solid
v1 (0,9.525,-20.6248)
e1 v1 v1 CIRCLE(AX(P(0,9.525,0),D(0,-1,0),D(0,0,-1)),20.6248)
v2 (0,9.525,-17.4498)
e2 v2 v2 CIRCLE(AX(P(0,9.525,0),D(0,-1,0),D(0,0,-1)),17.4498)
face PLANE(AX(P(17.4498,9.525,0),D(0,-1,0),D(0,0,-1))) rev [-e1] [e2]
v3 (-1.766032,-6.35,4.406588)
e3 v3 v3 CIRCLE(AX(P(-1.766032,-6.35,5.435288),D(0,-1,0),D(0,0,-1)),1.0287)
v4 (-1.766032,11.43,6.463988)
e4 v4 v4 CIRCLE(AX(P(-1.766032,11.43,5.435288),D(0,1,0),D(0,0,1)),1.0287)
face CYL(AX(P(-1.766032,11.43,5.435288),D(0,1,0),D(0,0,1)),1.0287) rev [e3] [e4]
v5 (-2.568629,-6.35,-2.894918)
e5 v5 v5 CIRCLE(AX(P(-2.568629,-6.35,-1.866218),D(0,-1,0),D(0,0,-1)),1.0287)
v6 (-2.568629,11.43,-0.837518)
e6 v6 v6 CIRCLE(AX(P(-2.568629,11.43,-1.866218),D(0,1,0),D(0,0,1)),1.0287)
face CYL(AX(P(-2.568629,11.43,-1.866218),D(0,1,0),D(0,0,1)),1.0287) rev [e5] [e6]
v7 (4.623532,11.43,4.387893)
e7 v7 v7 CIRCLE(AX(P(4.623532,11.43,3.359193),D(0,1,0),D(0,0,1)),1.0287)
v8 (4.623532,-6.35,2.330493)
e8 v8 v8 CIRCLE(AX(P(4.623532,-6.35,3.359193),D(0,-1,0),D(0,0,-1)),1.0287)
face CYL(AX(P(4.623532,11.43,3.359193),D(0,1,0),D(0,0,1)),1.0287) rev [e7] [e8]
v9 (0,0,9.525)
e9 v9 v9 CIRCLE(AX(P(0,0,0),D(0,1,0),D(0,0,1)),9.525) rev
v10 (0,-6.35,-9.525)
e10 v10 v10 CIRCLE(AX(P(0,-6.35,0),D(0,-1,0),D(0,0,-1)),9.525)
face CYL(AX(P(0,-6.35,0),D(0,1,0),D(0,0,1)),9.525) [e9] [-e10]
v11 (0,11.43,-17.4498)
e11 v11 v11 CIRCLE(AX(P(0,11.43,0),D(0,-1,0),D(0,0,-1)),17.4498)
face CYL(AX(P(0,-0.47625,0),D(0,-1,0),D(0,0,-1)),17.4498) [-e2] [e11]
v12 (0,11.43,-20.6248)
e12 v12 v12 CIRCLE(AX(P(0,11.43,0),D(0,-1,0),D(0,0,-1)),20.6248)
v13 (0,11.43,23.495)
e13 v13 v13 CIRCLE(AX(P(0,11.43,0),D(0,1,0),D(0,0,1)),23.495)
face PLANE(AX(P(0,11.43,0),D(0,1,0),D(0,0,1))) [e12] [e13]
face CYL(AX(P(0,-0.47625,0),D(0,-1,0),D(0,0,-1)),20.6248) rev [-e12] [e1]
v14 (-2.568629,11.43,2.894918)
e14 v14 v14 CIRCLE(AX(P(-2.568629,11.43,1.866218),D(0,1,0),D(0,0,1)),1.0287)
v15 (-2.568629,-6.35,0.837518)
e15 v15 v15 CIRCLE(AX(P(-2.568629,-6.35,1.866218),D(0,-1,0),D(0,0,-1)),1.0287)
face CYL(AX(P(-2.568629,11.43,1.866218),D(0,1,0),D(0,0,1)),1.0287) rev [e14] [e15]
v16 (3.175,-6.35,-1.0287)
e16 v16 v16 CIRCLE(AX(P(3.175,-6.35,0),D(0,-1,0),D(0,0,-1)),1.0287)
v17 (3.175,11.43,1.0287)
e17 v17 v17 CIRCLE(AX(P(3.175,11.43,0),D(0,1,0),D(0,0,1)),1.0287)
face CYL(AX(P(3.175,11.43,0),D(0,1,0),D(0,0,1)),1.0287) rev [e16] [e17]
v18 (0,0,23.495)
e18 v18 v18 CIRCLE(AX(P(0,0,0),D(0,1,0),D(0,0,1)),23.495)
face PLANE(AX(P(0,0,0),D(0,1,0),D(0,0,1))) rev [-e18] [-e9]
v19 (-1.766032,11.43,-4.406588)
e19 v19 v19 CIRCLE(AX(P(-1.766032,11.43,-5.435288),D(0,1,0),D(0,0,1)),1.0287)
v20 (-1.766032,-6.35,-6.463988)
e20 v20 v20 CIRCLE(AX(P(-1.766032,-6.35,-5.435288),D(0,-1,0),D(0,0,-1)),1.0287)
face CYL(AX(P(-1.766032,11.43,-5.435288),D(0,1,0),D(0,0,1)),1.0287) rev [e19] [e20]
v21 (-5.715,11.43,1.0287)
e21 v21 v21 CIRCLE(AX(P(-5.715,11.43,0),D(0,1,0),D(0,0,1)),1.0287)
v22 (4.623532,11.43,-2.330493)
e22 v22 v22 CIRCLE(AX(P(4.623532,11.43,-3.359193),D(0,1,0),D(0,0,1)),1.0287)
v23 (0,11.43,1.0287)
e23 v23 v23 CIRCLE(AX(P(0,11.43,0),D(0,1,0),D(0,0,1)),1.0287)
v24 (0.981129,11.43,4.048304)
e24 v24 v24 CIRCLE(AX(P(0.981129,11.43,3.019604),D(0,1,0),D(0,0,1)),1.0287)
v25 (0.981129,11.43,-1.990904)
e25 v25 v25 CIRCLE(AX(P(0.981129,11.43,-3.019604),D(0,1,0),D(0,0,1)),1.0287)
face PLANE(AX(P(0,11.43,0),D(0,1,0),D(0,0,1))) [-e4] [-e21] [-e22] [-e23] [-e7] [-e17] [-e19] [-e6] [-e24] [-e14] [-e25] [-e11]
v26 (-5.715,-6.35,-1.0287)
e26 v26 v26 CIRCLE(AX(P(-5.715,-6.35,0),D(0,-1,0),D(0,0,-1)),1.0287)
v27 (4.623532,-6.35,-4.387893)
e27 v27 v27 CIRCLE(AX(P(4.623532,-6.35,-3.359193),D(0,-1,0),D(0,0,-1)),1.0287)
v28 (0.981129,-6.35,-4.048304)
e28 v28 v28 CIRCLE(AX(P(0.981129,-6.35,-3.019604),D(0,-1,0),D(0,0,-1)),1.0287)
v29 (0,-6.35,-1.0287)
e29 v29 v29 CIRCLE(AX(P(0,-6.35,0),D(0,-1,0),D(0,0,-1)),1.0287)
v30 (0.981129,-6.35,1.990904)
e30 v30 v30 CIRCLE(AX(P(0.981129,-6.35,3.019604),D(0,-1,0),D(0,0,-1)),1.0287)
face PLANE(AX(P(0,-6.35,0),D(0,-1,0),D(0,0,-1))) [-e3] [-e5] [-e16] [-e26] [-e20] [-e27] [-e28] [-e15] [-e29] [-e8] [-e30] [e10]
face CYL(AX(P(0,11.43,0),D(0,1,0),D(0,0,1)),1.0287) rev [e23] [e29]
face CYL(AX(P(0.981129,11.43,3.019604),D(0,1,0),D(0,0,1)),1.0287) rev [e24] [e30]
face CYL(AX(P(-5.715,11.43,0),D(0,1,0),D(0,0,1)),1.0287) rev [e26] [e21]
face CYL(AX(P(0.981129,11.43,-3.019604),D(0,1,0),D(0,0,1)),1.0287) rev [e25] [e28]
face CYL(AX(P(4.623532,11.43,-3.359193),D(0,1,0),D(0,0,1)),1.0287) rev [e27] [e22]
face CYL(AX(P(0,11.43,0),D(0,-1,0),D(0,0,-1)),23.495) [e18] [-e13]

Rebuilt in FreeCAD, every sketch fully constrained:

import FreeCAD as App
import Part
import Sketcher

V = App.Vector
Q = App.Units.Quantity


def add_polygon(sketch, points):
    """Adds a closed chain of lines whose ends are joined by coincident constraints."""
    first, n = sketch.GeometryCount, len(points)
    for a, b in zip(points, points[1:] + points[:1]):
        sketch.addGeometry(Part.LineSegment(App.Vector(*a, 0), App.Vector(*b, 0)), False)
    for i in range(n):
        sketch.addConstraint(Sketcher.Constraint("Coincident", first + i, 2, first + (i + 1) % n, 1))

doc = App.newDocument("Part")
body = doc.addObject("PartDesign::Body", "Body")

sketch1 = body.newObject("Sketcher::SketchObject", "Sketch")
sketch1.AttachmentSupport = (doc.getObject("XZ_Plane"), [""])
sketch1.MapMode = "FlatFace"
sketch1.addGeometry(Part.Circle(V(0, 0, 0), V(0, 0, 1), 23), False)
sketch1.addConstraint([
    Sketcher.Constraint("Coincident", 0, 3, -1, 1),
    Sketcher.Constraint("Diameter", 0, Q("1.85 in")),
])
pad1 = body.newObject("PartDesign::Pad", "Pad")
pad1.Profile = sketch1
pad1.Length = Q("0.45 in")
pad1.Reversed = True

sketch2 = body.newObject("Sketcher::SketchObject", "Sketch001")
sketch2.AttachmentSupport = (doc.getObject("XY_Plane"), [""])
sketch2.MapMode = "FlatFace"
add_polygon(sketch2, [(17.4, 11.4), (17.4, 9.5), (20.6, 9.5), (20.6, 11.4)])
sketch2.addConstraint([
    Sketcher.Constraint("Vertical", 0),
    Sketcher.Constraint("Horizontal", 1),
    Sketcher.Constraint("Vertical", 2),
    Sketcher.Constraint("Horizontal", 3),
    Sketcher.Constraint("DistanceX", 1, 1, 1, 2, Q("0.125 in")),
    Sketcher.Constraint("DistanceY", 0, 2, 0, 1, Q("0.075 in")),
    Sketcher.Constraint("DistanceY", -1, 1, 2, 2, Q("0.45 in")),
    Sketcher.Constraint("DistanceX", -1, 1, 0, 2, Q("0.687 in")),
])
groove = body.newObject("PartDesign::Groove", "Groove")
groove.Profile = sketch2
groove.ReferenceAxis = (sketch2, ["V_Axis"])
groove.Angle = 360

sketch3 = body.newObject("Sketcher::SketchObject", "Sketch002")
sketch3.AttachmentSupport = (doc.getObject("XZ_Plane"), [""])
sketch3.MapMode = "FlatFace"
sketch3.addGeometry(Part.Circle(V(0, 0, 0), V(0, 0, 1), 10), False)
sketch3.addConstraint([
    Sketcher.Constraint("Coincident", 0, 3, -1, 1),
    Sketcher.Constraint("Diameter", 0, Q("0.75 in")),
])
pad2 = body.newObject("PartDesign::Pad", "Pad001")
pad2.Profile = sketch3
pad2.Length = Q("0.25 in")

sketch4 = body.newObject("Sketcher::SketchObject", "Sketch003")
sketch4.AttachmentSupport = (doc.getObject("XZ_Plane"), [""])
sketch4.MapMode = "FlatFace"
sketch4.AttachmentOffset = App.Placement(V(0, 0, -0.45 * 25.4), App.Rotation())
sketch4.addGeometry([
    Part.Circle(V(-5.7, 0, 0), V(0, 0, 1), 1),
    Part.Circle(V(-2.6, -1.9, 0), V(0, 0, 1), 1),
    Part.Circle(V(0, 0, 0), V(0, 0, 1), 1),
    Part.Circle(V(-1.8, -5.4, 0), V(0, 0, 1), 1),
    Part.Circle(V(4.6, -3.4, 0), V(0, 0, 1), 1),
    Part.Circle(V(4.6, 3.4, 0), V(0, 0, 1), 1),
    Part.Circle(V(-1.8, 5.4, 0), V(0, 0, 1), 1),
    Part.Circle(V(1, -3, 0), V(0, 0, 1), 1),
    Part.Circle(V(3.2, 0, 0), V(0, 0, 1), 1),
    Part.Circle(V(1, 3, 0), V(0, 0, 1), 1),
    Part.Circle(V(-2.6, 1.9, 0), V(0, 0, 1), 1),
], False)
sketch4.addConstraint([
    Sketcher.Constraint("Coincident", 2, 3, -1, 1),
    Sketcher.Constraint("Equal", 0, 1),
    Sketcher.Constraint("Equal", 1, 2),
    Sketcher.Constraint("Equal", 2, 3),
    Sketcher.Constraint("Equal", 3, 4),
    Sketcher.Constraint("Equal", 4, 5),
    Sketcher.Constraint("Equal", 5, 6),
    Sketcher.Constraint("Equal", 6, 7),
    Sketcher.Constraint("Equal", 7, 8),
    Sketcher.Constraint("Equal", 8, 9),
    Sketcher.Constraint("Equal", 9, 10),
    Sketcher.Constraint("Symmetric", 4, 3, 5, 3, -1),
    Sketcher.Constraint("Symmetric", 3, 3, 6, 3, -1),
    Sketcher.Constraint("Symmetric", 7, 3, 9, 3, -1),
    Sketcher.Constraint("Symmetric", 1, 3, 10, 3, -1),
    Sketcher.Constraint("PointOnObject", 0, 3, -1),
    Sketcher.Constraint("PointOnObject", 8, 3, -1),
    Sketcher.Constraint("Diameter", 0, Q("0.081 in")),
    Sketcher.Constraint("DistanceX", 0, 3, -1, 1, Q("0.225 in")),
    Sketcher.Constraint("DistanceX", -1, 1, 8, 3, Q("0.125 in")),
    Sketcher.Constraint("DistanceX", 1, 3, -1, 1, 2.568629),
    Sketcher.Constraint("DistanceY", 1, 3, -1, 1, 1.866218),
    Sketcher.Constraint("DistanceX", -1, 1, 7, 3, 0.981129),
    Sketcher.Constraint("DistanceY", 3, 3, 1, 3, 3.56907),
    Sketcher.Constraint("DistanceX", 1, 3, 4, 3, 7.192161),
    Sketcher.Constraint("DistanceY", 1, 3, 5, 3, 5.225411),
    Sketcher.Constraint("DistanceY", 4, 3, 7, 3, 0.339588),
    Sketcher.Constraint("DistanceX", 3, 3, 7, 3, 2.747161),
])
doc.recompute()
hole = body.newObject("PartDesign::Hole", "Hole")
hole.Profile = sketch4
hole.ThreadType = "None"
hole.Diameter = Q("0.081 in")
hole.DepthType = "Dimension"
hole.Depth = Q("0.7 in")
hole.DrillPoint = "Flat"
hole.Reversed = True

doc.recompute()
